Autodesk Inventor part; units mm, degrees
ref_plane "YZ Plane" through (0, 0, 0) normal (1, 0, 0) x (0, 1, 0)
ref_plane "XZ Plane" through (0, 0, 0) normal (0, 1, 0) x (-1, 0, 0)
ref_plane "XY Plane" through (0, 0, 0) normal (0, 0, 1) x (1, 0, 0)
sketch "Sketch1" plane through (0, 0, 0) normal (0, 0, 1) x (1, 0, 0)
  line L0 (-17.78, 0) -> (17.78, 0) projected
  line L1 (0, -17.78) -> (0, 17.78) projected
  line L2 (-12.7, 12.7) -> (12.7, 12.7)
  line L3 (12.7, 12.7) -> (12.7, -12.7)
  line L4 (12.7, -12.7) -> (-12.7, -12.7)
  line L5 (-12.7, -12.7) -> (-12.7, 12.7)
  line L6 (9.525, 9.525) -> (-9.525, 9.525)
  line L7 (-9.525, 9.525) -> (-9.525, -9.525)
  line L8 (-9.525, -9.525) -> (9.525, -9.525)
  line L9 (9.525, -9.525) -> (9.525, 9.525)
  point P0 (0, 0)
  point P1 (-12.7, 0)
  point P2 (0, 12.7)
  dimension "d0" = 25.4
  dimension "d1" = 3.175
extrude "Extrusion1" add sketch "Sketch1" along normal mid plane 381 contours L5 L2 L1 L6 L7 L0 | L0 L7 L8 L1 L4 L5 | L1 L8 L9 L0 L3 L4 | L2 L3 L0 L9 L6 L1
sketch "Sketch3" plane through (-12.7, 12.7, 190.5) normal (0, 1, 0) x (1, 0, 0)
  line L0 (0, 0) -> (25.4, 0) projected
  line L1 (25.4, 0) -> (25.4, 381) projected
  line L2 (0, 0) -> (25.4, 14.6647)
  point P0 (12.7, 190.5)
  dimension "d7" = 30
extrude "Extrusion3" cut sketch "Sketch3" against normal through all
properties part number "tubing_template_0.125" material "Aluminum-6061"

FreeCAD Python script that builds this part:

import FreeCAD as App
import Part
import Sketcher
from FreeCAD import Vector
Q = App.Units.Quantity


def add_polygon(sketch, points):
    """Adds a closed chain of lines whose ends are joined by coincident constraints."""
    first, n = sketch.GeometryCount, len(points)
    for a, b in zip(points, points[1:] + points[:1]):
        sketch.addGeometry(Part.LineSegment(App.Vector(*a, 0), App.Vector(*b, 0)), False)
    for i in range(n):
        sketch.addConstraint(Sketcher.Constraint("Coincident", first + i, 2, first + (i + 1) % n, 1))

doc = App.newDocument("Part")
params = doc.addObject("Spreadsheet::Sheet", "Params")
for row, (alias, value) in enumerate([
    ("sketch1_width", "1 in"),
    ("pad1_length", "15 in"),
    ("sketch2_width", "1 in"),
], start=1):
    params.set(f"A{row}", alias)
    params.set(f"B{row}", "=" + value)
    params.setAlias(f"B{row}", alias)

body = doc.addObject("PartDesign::Body", "Body")

# Sketch on XY plane
sketch1 = body.newObject("Sketcher::SketchObject", "Sketch")
sketch1.AttachmentSupport = (doc.getObject("XY_Plane"), [""])
sketch1.MapMode = "FlatFace"
add_polygon(sketch1, [(-13, 13), (-13, -13), (13, -13), (13, 13)])  # lines 0-3
add_polygon(sketch1, [(-10, 10), (10, 10), (10, -10), (-10, -10)])  # lines 4-7
sketch1.addConstraint([
    Sketcher.Constraint("Vertical", 0),
    Sketcher.Constraint("Horizontal", 1),
    Sketcher.Constraint("Vertical", 2),
    Sketcher.Constraint("Horizontal", 3),
    Sketcher.Constraint("Horizontal", 4),
    Sketcher.Constraint("Vertical", 5),
    Sketcher.Constraint("Horizontal", 6),
    Sketcher.Constraint("Vertical", 7),
    Sketcher.Constraint("Symmetric", 0, 2, 2, 2, -1, 1),
    Sketcher.Constraint("Symmetric", 4, 2, 6, 2, -1, 1),
    Sketcher.Constraint("Equal", 3, 0),
    Sketcher.Constraint("Equal", 6, 5),
    Sketcher.Constraint("DistanceX", 1, 1, 1, 2, Q("1 in")),
    Sketcher.Constraint("DistanceX", 4, 2, 2, 2, Q("0.125 in")),
])
sketch1.setExpression("Constraints[20]", "Params.sketch1_width")
pad1 = body.newObject("PartDesign::Pad", "Pad")
pad1.Profile = sketch1
pad1.setExpression("Length", "Params.pad1_length")
pad1.Midplane = True

# Sketch on XZ plane
sketch2 = body.newObject("Sketcher::SketchObject", "Sketch001")
sketch2.AttachmentSupport = (doc.getObject("XZ_Plane"), [""])
sketch2.MapMode = "FlatFace"
sketch2.AttachmentOffset = App.Placement(Vector(0, 0, -0.5 * 25.4), App.Rotation())
add_polygon(sketch2, [(13, 176), (-13, 190), (13, 190)])  # lines 0-2
sketch2.addConstraint([
    Sketcher.Constraint("Horizontal", 1),
    Sketcher.Constraint("Vertical", 2),
    Sketcher.Constraint("DistanceX", 1, 1, 1, 2, Q("1 in")),
    Sketcher.Constraint("Angle", 0, Q("150 deg")),
    Sketcher.Constraint("DistanceX", 0, 2, -1, 1, Q("0.5 in")),
    Sketcher.Constraint("DistanceY", -1, 1, 0, 2, Q("7.5 in")),
])
sketch2.setExpression("Constraints[5]", "Params.sketch2_width")
pocket1 = body.newObject("PartDesign::Pocket", "Pocket")
pocket1.Profile = sketch2
pocket1.Type = "ThroughAll"
pocket1.Reversed = True

doc.recompute()
